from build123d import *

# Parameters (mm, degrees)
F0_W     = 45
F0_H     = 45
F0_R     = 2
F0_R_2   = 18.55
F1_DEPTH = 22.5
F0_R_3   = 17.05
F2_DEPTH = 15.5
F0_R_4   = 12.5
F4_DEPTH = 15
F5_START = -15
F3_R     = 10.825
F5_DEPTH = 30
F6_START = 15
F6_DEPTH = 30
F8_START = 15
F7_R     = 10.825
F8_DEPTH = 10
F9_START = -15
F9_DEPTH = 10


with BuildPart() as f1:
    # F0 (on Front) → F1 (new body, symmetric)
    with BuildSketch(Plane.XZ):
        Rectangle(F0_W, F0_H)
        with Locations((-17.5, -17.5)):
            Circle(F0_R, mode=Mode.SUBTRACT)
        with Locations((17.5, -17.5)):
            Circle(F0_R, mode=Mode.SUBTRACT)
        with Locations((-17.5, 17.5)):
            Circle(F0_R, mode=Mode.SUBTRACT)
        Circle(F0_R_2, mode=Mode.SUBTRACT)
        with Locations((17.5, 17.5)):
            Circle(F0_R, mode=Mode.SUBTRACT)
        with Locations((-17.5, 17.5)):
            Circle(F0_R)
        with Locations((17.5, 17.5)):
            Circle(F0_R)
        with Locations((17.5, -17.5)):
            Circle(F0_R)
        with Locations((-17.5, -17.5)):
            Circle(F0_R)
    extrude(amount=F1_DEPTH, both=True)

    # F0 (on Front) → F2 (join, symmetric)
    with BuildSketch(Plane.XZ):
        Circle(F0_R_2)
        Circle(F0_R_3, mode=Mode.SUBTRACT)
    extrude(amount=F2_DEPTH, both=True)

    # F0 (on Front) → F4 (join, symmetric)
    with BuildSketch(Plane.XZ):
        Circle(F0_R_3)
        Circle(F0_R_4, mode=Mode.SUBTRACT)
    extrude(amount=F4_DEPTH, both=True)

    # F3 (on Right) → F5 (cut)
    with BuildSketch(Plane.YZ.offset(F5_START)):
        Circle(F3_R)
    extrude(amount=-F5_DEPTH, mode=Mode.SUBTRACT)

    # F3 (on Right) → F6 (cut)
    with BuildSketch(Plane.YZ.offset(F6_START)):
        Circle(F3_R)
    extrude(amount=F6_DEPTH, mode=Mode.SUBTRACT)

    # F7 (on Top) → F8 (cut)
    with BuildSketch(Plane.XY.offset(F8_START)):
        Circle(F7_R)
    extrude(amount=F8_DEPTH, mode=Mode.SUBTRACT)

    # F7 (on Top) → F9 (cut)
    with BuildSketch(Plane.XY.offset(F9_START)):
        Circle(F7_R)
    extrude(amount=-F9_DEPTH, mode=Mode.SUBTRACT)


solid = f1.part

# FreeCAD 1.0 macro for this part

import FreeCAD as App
import Part
import Sketcher

V = App.Vector
Q = App.Units.Quantity


def add_polygon(sketch, points):
    """Adds a closed chain of lines whose ends are joined by coincident constraints."""
    first, n = sketch.GeometryCount, len(points)
    for a, b in zip(points, points[1:] + points[:1]):
        sketch.addGeometry(Part.LineSegment(App.Vector(*a, 0), App.Vector(*b, 0)), False)
    for i in range(n):
        sketch.addConstraint(Sketcher.Constraint("Coincident", first + i, 2, first + (i + 1) % n, 1))

doc = App.newDocument("Part")
body = doc.addObject("PartDesign::Body", "Body")

sketch1 = body.newObject("Sketcher::SketchObject", "Sketch")
sketch1.AttachmentSupport = (doc.getObject("XZ_Plane"), [""])
sketch1.MapMode = "FlatFace"
add_polygon(sketch1, [(-22, 22), (-22, -22), (22, -22), (22, 22)])
sketch1.addGeometry(Part.Circle(V(0, 0, 0), V(0, 0, 1), 19), False)
sketch1.addConstraint([
    Sketcher.Constraint("Vertical", 0),
    Sketcher.Constraint("Horizontal", 1),
    Sketcher.Constraint("Vertical", 2),
    Sketcher.Constraint("Horizontal", 3),
    Sketcher.Constraint("Coincident", 4, 3, -1, 1),
    Sketcher.Constraint("Symmetric", 0, 2, 2, 2, -1, 1),
    Sketcher.Constraint("Equal", 3, 0),
    Sketcher.Constraint("Diameter", 4, Q("37.1 mm")),
    Sketcher.Constraint("DistanceX", 1, 1, 1, 2, Q("45 mm")),
])
pad1 = body.newObject("PartDesign::Pad", "Pad")
pad1.Profile = sketch1
pad1.Length = 45
pad1.Midplane = True

sketch2 = body.newObject("Sketcher::SketchObject", "Sketch001")
sketch2.AttachmentSupport = (doc.getObject("XZ_Plane"), [""])
sketch2.MapMode = "FlatFace"
sketch2.addGeometry([
    Part.Circle(V(0, 0, 0), V(0, 0, 1), 19),
    Part.Circle(V(0, 0, 0), V(0, 0, 1), 17),
], False)
sketch2.addConstraint([
    Sketcher.Constraint("Coincident", 0, 3, -1, 1),
    Sketcher.Constraint("Coincident", 1, 3, -1, 1),
    Sketcher.Constraint("Diameter", 0, Q("37.1 mm")),
    Sketcher.Constraint("Diameter", 1, Q("34.1 mm")),
])
pad2 = body.newObject("PartDesign::Pad", "Pad001")
pad2.Profile = sketch2
pad2.Length = 31
pad2.Midplane = True

sketch3 = body.newObject("Sketcher::SketchObject", "Sketch002")
sketch3.AttachmentSupport = (doc.getObject("XZ_Plane"), [""])
sketch3.MapMode = "FlatFace"
sketch3.addGeometry([
    Part.Circle(V(0, 0, 0), V(0, 0, 1), 17),
    Part.Circle(V(0, 0, 0), V(0, 0, 1), 12),
], False)
sketch3.addConstraint([
    Sketcher.Constraint("Coincident", 0, 3, -1, 1),
    Sketcher.Constraint("Coincident", 1, 3, -1, 1),
    Sketcher.Constraint("Diameter", 1, Q("25 mm")),
    Sketcher.Constraint("Diameter", 0, Q("34.1 mm")),
])
pad3 = body.newObject("PartDesign::Pad", "Pad002")
pad3.Profile = sketch3
pad3.Length = 30
pad3.Midplane = True

sketch4 = body.newObject("Sketcher::SketchObject", "Sketch003")
sketch4.AttachmentSupport = (doc.getObject("YZ_Plane"), [""])
sketch4.MapMode = "FlatFace"
sketch4.AttachmentOffset = App.Placement(V(0, 0, -15), App.Rotation())
sketch4.addGeometry(Part.Circle(V(0, 0, 0), V(0, 0, 1), 11), False)
sketch4.addConstraint([
    Sketcher.Constraint("Coincident", 0, 3, -1, 1),
    Sketcher.Constraint("Diameter", 0, Q("21.65 mm")),
])
pocket1 = body.newObject("PartDesign::Pocket", "Pocket")
pocket1.Profile = sketch4
pocket1.Length = 30

sketch5 = body.newObject("Sketcher::SketchObject", "Sketch004")
sketch5.AttachmentSupport = (doc.getObject("YZ_Plane"), [""])
sketch5.MapMode = "FlatFace"
sketch5.AttachmentOffset = App.Placement(V(0, 0, 15), App.Rotation())
sketch5.addGeometry(Part.Circle(V(0, 0, 0), V(0, 0, 1), 11), False)
sketch5.addConstraint([
    Sketcher.Constraint("Coincident", 0, 3, -1, 1),
    Sketcher.Constraint("Diameter", 0, Q("21.65 mm")),
])
pocket2 = body.newObject("PartDesign::Pocket", "Pocket001")
pocket2.Profile = sketch5
pocket2.Length = 30
pocket2.Reversed = True

sketch6 = body.newObject("Sketcher::SketchObject", "Sketch005")
sketch6.AttachmentSupport = (doc.getObject("XY_Plane"), [""])
sketch6.MapMode = "FlatFace"
sketch6.AttachmentOffset = App.Placement(V(0, 0, 15), App.Rotation())
sketch6.addGeometry(Part.Circle(V(0, 0, 0), V(0, 0, 1), 11), False)
sketch6.addConstraint([
    Sketcher.Constraint("Coincident", 0, 3, -1, 1),
    Sketcher.Constraint("Diameter", 0, Q("21.65 mm")),
])
pocket3 = body.newObject("PartDesign::Pocket", "Pocket002")
pocket3.Profile = sketch6
pocket3.Length = 10
pocket3.Reversed = True

sketch7 = body.newObject("Sketcher::SketchObject", "Sketch006")
sketch7.AttachmentSupport = (doc.getObject("XY_Plane"), [""])
sketch7.MapMode = "FlatFace"
sketch7.AttachmentOffset = App.Placement(V(0, 0, -15), App.Rotation())
sketch7.addGeometry(Part.Circle(V(0, 0, 0), V(0, 0, 1), 11), False)
sketch7.addConstraint([
    Sketcher.Constraint("Coincident", 0, 3, -1, 1),
    Sketcher.Constraint("Diameter", 0, Q("21.65 mm")),
])
pocket4 = body.newObject("PartDesign::Pocket", "Pocket003")
pocket4.Profile = sketch7
pocket4.Length = 10

doc.recompute()
